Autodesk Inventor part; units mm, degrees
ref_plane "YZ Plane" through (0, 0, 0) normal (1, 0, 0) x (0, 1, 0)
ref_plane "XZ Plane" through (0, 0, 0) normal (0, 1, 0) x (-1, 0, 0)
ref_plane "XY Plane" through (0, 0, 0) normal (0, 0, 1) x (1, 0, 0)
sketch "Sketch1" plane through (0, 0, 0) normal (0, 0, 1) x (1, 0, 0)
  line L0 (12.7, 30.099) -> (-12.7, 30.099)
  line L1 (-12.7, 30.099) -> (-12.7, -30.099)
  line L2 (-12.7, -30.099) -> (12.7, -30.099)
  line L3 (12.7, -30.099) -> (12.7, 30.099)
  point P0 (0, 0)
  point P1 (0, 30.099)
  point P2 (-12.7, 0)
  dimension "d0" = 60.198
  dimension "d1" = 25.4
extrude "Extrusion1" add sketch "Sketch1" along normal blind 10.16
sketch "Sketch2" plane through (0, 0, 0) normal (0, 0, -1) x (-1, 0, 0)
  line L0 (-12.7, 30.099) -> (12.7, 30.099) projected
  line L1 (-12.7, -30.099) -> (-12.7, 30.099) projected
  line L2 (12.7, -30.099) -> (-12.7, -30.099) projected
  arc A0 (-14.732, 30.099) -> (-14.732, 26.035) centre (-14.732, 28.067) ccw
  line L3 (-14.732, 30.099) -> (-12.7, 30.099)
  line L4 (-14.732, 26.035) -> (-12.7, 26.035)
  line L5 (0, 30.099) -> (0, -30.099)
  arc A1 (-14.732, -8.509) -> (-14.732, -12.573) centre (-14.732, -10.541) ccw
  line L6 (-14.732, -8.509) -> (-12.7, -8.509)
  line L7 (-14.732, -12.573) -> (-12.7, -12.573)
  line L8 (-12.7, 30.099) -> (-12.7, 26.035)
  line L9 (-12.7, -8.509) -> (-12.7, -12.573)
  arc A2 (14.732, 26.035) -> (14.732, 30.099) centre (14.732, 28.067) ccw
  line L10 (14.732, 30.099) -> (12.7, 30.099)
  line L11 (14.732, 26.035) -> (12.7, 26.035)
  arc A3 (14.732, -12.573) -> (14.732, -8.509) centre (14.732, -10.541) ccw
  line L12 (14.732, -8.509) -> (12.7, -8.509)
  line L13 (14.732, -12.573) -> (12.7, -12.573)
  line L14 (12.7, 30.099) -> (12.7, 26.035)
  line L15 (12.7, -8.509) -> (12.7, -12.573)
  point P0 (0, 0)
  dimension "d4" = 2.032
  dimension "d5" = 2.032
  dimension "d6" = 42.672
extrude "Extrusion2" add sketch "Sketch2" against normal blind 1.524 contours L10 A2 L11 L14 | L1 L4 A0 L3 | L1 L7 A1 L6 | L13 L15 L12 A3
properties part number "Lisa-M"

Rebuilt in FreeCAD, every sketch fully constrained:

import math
import FreeCAD as App
import Part
import Sketcher
from FreeCAD import Vector
Q = App.Units.Quantity

doc = App.newDocument("Part")
body = doc.addObject("PartDesign::Body", "Body")

# Sketch on XY plane
sketch1 = body.newObject("Sketcher::SketchObject", "Sketch")
sketch1.AttachmentSupport = (doc.getObject("XY_Plane"), [""])
sketch1.MapMode = "FlatFace"
sketch1.addGeometry([
    Part.LineSegment(Vector(13, -30, 0), Vector(13, 30, 0)),
    Part.LineSegment(Vector(13, 30, 0), Vector(-13, 30, 0)),
    Part.LineSegment(Vector(-13, 30, 0), Vector(-13, -30, 0)),
    Part.LineSegment(Vector(-13, -30, 0), Vector(13, -30, 0)),
], False)
sketch1.addConstraint([
    Sketcher.Constraint("Coincident", 0, 2, 1, 1),
    Sketcher.Constraint("Coincident", 1, 2, 2, 1),
    Sketcher.Constraint("Coincident", 2, 2, 3, 1),
    Sketcher.Constraint("Coincident", 3, 2, 0, 1),
    Sketcher.Constraint("Vertical", 0),
    Sketcher.Constraint("Horizontal", 1),
    Sketcher.Constraint("Vertical", 2),
    Sketcher.Constraint("Horizontal", 3),
    Sketcher.Constraint("Symmetric", 0, 2, 2, 2, -1, 1),
    Sketcher.Constraint("DistanceX", 1, 2, 1, 1, Q("1 in")),
    Sketcher.Constraint("DistanceY", 0, 1, 0, 2, Q("2.37 in")),
])
pad1 = body.newObject("PartDesign::Pad", "Pad")
pad1.Profile = sketch1
pad1.Length = Q("0.4 in")

# Sketch on XY plane
sketch2 = body.newObject("Sketcher::SketchObject", "Sketch001")
sketch2.AttachmentSupport = (doc.getObject("XY_Plane"), [""])
sketch2.MapMode = "FlatFace"
sketch2.addGeometry([
    Part.LineSegment(Vector(-14.7, 30.1, 0), Vector(-12.7, 30.1, 0)),  # 0
    Part.LineSegment(Vector(-12.7, 30.1, 0), Vector(-12.7, 26, 0)),  # 1
    Part.LineSegment(Vector(-12.7, 26, 0), Vector(-14.7, 26, 0)),  # 2
    Part.ArcOfCircle(Part.Circle(Vector(-14.7, 28.1, 0), Vector(0, 0, 1), 2), math.radians(90), math.radians(270)),  # 3
    Part.LineSegment(Vector(12.7, 26, 0), Vector(12.7, 30.1, 0)),  # 4
    Part.LineSegment(Vector(12.7, 30.1, 0), Vector(14.7, 30.1, 0)),  # 5
    Part.ArcOfCircle(Part.Circle(Vector(14.7, 28.1, 0), Vector(0, 0, 1), 2), math.radians(-90), math.radians(90)),  # 6
    Part.LineSegment(Vector(14.7, 26, 0), Vector(12.7, 26, 0)),  # 7
    Part.LineSegment(Vector(12.7, -12.6, 0), Vector(12.7, -8.5, 0)),  # 8
    Part.LineSegment(Vector(12.7, -8.5, 0), Vector(14.7, -8.5, 0)),  # 9
    Part.ArcOfCircle(Part.Circle(Vector(14.7, -10.5, 0), Vector(0, 0, 1), 2), math.radians(-90), math.radians(90)),  # 10
    Part.LineSegment(Vector(14.7, -12.6, 0), Vector(12.7, -12.6, 0)),  # 11
    Part.LineSegment(Vector(-12.7, -12.6, 0), Vector(-14.7, -12.6, 0)),  # 12
    Part.ArcOfCircle(Part.Circle(Vector(-14.7, -10.5, 0), Vector(0, 0, 1), 2), math.radians(90), math.radians(270)),  # 13
    Part.LineSegment(Vector(-14.7, -8.5, 0), Vector(-12.7, -8.5, 0)),  # 14
    Part.LineSegment(Vector(-12.7, -8.5, 0), Vector(-12.7, -12.6, 0)),  # 15
], False)
sketch2.addConstraint([
    Sketcher.Constraint("Coincident", 0, 2, 1, 1),
    Sketcher.Constraint("Coincident", 1, 2, 2, 1),
    Sketcher.Constraint("Tangent", 2, 2, 3, 2),
    Sketcher.Constraint("Tangent", 3, 1, 0, 1),
    Sketcher.Constraint("Coincident", 4, 2, 5, 1),
    Sketcher.Constraint("Tangent", 5, 2, 6, 2),
    Sketcher.Constraint("Tangent", 6, 1, 7, 1),
    Sketcher.Constraint("Coincident", 7, 2, 4, 1),
    Sketcher.Constraint("Coincident", 8, 2, 9, 1),
    Sketcher.Constraint("Tangent", 9, 2, 10, 2),
    Sketcher.Constraint("Tangent", 10, 1, 11, 1),
    Sketcher.Constraint("Coincident", 11, 2, 8, 1),
    Sketcher.Constraint("Tangent", 12, 2, 13, 2),
    Sketcher.Constraint("Tangent", 13, 1, 14, 1),
    Sketcher.Constraint("Coincident", 14, 2, 15, 1),
    Sketcher.Constraint("Coincident", 15, 2, 12, 1),
    Sketcher.Constraint("Horizontal", 0),
    Sketcher.Constraint("Vertical", 1),
    Sketcher.Constraint("Horizontal", 2),
    Sketcher.Constraint("Vertical", 4),
    Sketcher.Constraint("Horizontal", 5),
    Sketcher.Constraint("Horizontal", 7),
    Sketcher.Constraint("Vertical", 8),
    Sketcher.Constraint("Horizontal", 9),
    Sketcher.Constraint("Horizontal", 11),
    Sketcher.Constraint("Horizontal", 12),
    Sketcher.Constraint("Horizontal", 14),
    Sketcher.Constraint("Vertical", 15),
    Sketcher.Constraint("Equal", 3, 6),
    Sketcher.Constraint("Equal", 6, 10),
    Sketcher.Constraint("Equal", 10, 13),
    Sketcher.Constraint("Symmetric", 3, 3, 6, 3, -2),
    Sketcher.Constraint("Symmetric", 10, 3, 13, 3, -2),
    Sketcher.Constraint("Vertical", 6, 3, 10, 3),
    Sketcher.Constraint("Vertical", 7, 2, 8, 2),
    Sketcher.Constraint("Vertical", 1, 2, 14, 2),
    Sketcher.Constraint("Equal", 2, 5),
    Sketcher.Constraint("Radius", 3, Q("0.08 in")),
    Sketcher.Constraint("DistanceX", 0, 1, 0, 2, Q("0.08 in")),
    Sketcher.Constraint("DistanceX", 0, 2, 4, 2, Q("1 in")),
    Sketcher.Constraint("DistanceY", 13, 3, 0, 2, Q("1.6 in")),
    Sketcher.Constraint("DistanceY", -1, 1, 3, 3, Q("1.105 in")),
])
pad2 = body.newObject("PartDesign::Pad", "Pad001")
pad2.Profile = sketch2
pad2.Length = Q("0.06 in")

doc.recompute()
